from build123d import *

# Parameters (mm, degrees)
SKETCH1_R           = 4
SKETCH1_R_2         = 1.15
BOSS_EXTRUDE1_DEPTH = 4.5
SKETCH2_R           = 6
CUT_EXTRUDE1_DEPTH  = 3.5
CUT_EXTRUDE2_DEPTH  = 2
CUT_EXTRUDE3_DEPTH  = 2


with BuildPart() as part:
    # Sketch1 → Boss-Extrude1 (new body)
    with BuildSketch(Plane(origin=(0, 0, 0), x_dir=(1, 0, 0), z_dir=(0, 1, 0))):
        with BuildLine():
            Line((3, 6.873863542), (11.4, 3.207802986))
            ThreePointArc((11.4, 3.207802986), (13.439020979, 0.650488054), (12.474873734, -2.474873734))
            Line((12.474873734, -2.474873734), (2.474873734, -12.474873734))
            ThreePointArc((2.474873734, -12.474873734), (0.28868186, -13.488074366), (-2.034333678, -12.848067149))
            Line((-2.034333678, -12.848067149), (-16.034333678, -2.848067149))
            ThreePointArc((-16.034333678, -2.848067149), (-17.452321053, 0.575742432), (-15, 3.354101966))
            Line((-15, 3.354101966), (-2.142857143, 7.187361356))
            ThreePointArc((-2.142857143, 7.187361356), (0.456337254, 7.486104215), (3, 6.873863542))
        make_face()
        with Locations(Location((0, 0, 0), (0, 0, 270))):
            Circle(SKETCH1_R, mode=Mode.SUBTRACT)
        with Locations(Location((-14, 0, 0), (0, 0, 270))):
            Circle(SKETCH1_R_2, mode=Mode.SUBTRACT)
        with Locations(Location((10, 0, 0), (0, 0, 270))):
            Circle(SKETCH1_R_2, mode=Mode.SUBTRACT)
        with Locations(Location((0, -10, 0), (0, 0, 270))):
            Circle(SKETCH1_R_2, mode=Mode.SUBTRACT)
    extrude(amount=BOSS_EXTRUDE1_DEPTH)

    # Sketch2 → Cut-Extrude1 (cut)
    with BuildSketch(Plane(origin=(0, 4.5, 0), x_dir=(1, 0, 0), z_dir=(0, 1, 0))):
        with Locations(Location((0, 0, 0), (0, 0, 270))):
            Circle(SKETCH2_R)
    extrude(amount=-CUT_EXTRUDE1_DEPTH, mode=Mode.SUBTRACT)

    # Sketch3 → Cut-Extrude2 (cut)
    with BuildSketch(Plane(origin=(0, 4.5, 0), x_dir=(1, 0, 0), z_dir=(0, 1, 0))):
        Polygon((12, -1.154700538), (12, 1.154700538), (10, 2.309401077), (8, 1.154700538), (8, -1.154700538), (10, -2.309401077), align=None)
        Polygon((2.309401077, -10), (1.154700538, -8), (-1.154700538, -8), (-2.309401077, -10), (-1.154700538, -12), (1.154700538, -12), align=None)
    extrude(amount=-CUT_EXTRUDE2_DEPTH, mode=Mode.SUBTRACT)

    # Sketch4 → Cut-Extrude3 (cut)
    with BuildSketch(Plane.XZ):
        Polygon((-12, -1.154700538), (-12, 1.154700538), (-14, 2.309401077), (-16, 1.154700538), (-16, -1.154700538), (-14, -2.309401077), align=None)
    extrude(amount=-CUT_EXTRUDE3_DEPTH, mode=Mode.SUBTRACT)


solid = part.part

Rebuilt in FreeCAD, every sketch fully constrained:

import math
import FreeCAD as App
import Part
import Sketcher

V = App.Vector
Q = App.Units.Quantity

doc = App.newDocument("Part")
body = doc.addObject("PartDesign::Body", "Body")

# Sketch on XZ plane
sketch1 = body.newObject("Sketcher::SketchObject", "Sketch")
sketch1.AttachmentSupport = (doc.getObject("XZ_Plane"), [""])
sketch1.MapMode = "FlatFace"
sketch1.addGeometry([
    Part.LineSegment(V(11.4, -3.2, 0), V(3, -6.9, 0)),  # 0
    Part.ArcOfCircle(Part.Circle(V(0, 0, 0), V(0, 0, 1), 7.5), math.radians(-107), math.radians(-66)),  # 1
    Part.LineSegment(V(-2.1, -7.2, 0), V(-15, -3.4, 0)),  # 2
    Part.ArcOfCircle(Part.Circle(V(-14, 0, 0), V(0, 0, 1), 3.5), math.radians(126), math.radians(253)),  # 3
    Part.LineSegment(V(-16, 2.8, 0), V(-2, 12.8, 0)),  # 4
    Part.ArcOfCircle(Part.Circle(V(0, 10, 0), V(0, 0, 1), 3.5), math.radians(45), math.radians(126)),  # 5
    Part.LineSegment(V(2.5, 12.5, 0), V(12.5, 2.5, 0)),  # 6
    Part.ArcOfCircle(Part.Circle(V(10, 0, 0), V(0, 0, 1), 3.5), math.radians(-66), math.radians(45)),  # 7
    Part.Circle(V(0, 10, 0), V(0, 0, 1), 1.1),  # 8
    Part.Circle(V(10, 0, 0), V(0, 0, 1), 1.1),  # 9
    Part.Circle(V(0, 0, 0), V(0, 0, 1), 4),  # 10
    Part.Circle(V(-14, 0, 0), V(0, 0, 1), 1.1),  # 11
], False)
sketch1.addConstraint([
    Sketcher.Constraint("Tangent", 0, 2, 1, 2),
    Sketcher.Constraint("Tangent", 1, 1, 2, 1),
    Sketcher.Constraint("Tangent", 2, 2, 3, 2),
    Sketcher.Constraint("Tangent", 3, 1, 4, 1),
    Sketcher.Constraint("Tangent", 4, 2, 5, 2),
    Sketcher.Constraint("Tangent", 5, 1, 6, 1),
    Sketcher.Constraint("Tangent", 6, 2, 7, 2),
    Sketcher.Constraint("Tangent", 7, 1, 0, 1),
    Sketcher.Constraint("Coincident", 1, 3, -1, 1),
    Sketcher.Constraint("Coincident", 10, 3, -1, 1),
    Sketcher.Constraint("Coincident", 8, 3, 5, 3),
    Sketcher.Constraint("Coincident", 9, 3, 7, 3),
    Sketcher.Constraint("Coincident", 11, 3, 3, 3),
    Sketcher.Constraint("Equal", 3, 5),
    Sketcher.Constraint("Equal", 5, 7),
    Sketcher.Constraint("Equal", 8, 9),
    Sketcher.Constraint("Equal", 9, 11),
    Sketcher.Constraint("PointOnObject", 3, 3, -1),
    Sketcher.Constraint("PointOnObject", 5, 3, -2),
    Sketcher.Constraint("PointOnObject", 7, 3, -1),
    Sketcher.Constraint("Diameter", 10, Q("8 mm")),
    Sketcher.Constraint("Diameter", 8, Q("2.3 mm")),
    Sketcher.Constraint("Radius", 1, Q("7.5 mm")),
    Sketcher.Constraint("Radius", 3, Q("3.5 mm")),
    Sketcher.Constraint("Angle", 6, Q("-45 deg")),
    Sketcher.Constraint("DistanceX", 3, 3, -1, 1, Q("14 mm")),
    Sketcher.Constraint("DistanceY", -1, 1, 5, 3, Q("10 mm")),
])
pad1 = body.newObject("PartDesign::Pad", "Pad")
pad1.Profile = sketch1
pad1.Length = 4.5
pad1.Reversed = True

# Sketch on XZ plane
sketch2 = body.newObject("Sketcher::SketchObject", "Sketch001")
sketch2.AttachmentSupport = (doc.getObject("XZ_Plane"), [""])
sketch2.MapMode = "FlatFace"
sketch2.AttachmentOffset = App.Placement(V(0, 0, -4.5), App.Rotation())
sketch2.addGeometry(Part.Circle(V(0, 0, 0), V(0, 0, 1), 6), False)
sketch2.addConstraint([
    Sketcher.Constraint("Coincident", 0, 3, -1, 1),
    Sketcher.Constraint("Diameter", 0, Q("12 mm")),
])
pocket1 = body.newObject("PartDesign::Pocket", "Pocket")
pocket1.Profile = sketch2
pocket1.Length = 3.5
pocket1.Reversed = True

# Sketch on XZ plane
sketch3 = body.newObject("Sketcher::SketchObject", "Sketch002")
sketch3.AttachmentSupport = (doc.getObject("XZ_Plane"), [""])
sketch3.MapMode = "FlatFace"
sketch3.AttachmentOffset = App.Placement(V(0, 0, -4.5), App.Rotation())
sketch3.addGeometry([
    Part.LineSegment(V(12, 1.2, 0), V(12, -1.2, 0)),  # 0
    Part.LineSegment(V(12, -1.2, 0), V(10, -2.3, 0)),  # 1
    Part.LineSegment(V(10, -2.3, 0), V(8, -1.2, 0)),  # 2
    Part.LineSegment(V(8, -1.2, 0), V(8, 1.2, 0)),  # 3
    Part.LineSegment(V(8, 1.2, 0), V(10, 2.3, 0)),  # 4
    Part.LineSegment(V(10, 2.3, 0), V(12, 1.2, 0)),  # 5
    Part.LineSegment(V(2.3, 10, 0), V(1.2, 8, 0)),  # 6
    Part.LineSegment(V(1.2, 8, 0), V(-1.2, 8, 0)),  # 7
    Part.LineSegment(V(-1.2, 8, 0), V(-2.3, 10, 0)),  # 8
    Part.LineSegment(V(-2.3, 10, 0), V(-1.2, 12, 0)),  # 9
    Part.LineSegment(V(-1.2, 12, 0), V(1.2, 12, 0)),  # 10
    Part.LineSegment(V(1.2, 12, 0), V(2.3, 10, 0)),  # 11
], False)
sketch3.addConstraint([
    Sketcher.Constraint("Coincident", 0, 2, 1, 1),
    Sketcher.Constraint("Coincident", 1, 2, 2, 1),
    Sketcher.Constraint("Coincident", 2, 2, 3, 1),
    Sketcher.Constraint("Coincident", 3, 2, 4, 1),
    Sketcher.Constraint("Coincident", 4, 2, 5, 1),
    Sketcher.Constraint("Coincident", 5, 2, 0, 1),
    Sketcher.Constraint("Coincident", 6, 2, 7, 1),
    Sketcher.Constraint("Coincident", 7, 2, 8, 1),
    Sketcher.Constraint("Coincident", 8, 2, 9, 1),
    Sketcher.Constraint("Coincident", 9, 2, 10, 1),
    Sketcher.Constraint("Coincident", 10, 2, 11, 1),
    Sketcher.Constraint("Coincident", 11, 2, 6, 1),
    Sketcher.Constraint("Vertical", 0),
    Sketcher.Constraint("Vertical", 3),
    Sketcher.Constraint("Horizontal", 7),
    Sketcher.Constraint("Horizontal", 10),
    Sketcher.Constraint("Symmetric", 8, 2, 11, 2, -2),
    Sketcher.Constraint("Symmetric", 1, 2, 4, 2, -1),
    Sketcher.Constraint("Parallel", 1, 4),
    Sketcher.Constraint("Parallel", 2, 5),
    Sketcher.Constraint("Perpendicular", 5, 6),
    Sketcher.Constraint("Perpendicular", 4, 8),
    Sketcher.Constraint("Parallel", 6, 9),
    Sketcher.Constraint("Parallel", 8, 11),
    Sketcher.Constraint("Horizontal", 0, 2, 2, 2),
    Sketcher.Constraint("Horizontal", 3, 2, 5, 2),
    Sketcher.Constraint("Vertical", 7, 2, 9, 2),
    Sketcher.Constraint("Equal", 10, 0),
    Sketcher.Constraint("Equal", 5, 6),
    Sketcher.Constraint("Angle", 1, Q("-150 deg")),
    Sketcher.Constraint("DistanceX", -1, 1, 0, 2, Q("12 mm")),
    Sketcher.Constraint("DistanceX", -1, 1, 1, 2, Q("10 mm")),
    Sketcher.Constraint("DistanceY", -1, 1, 6, 2, Q("8 mm")),
    Sketcher.Constraint("DistanceX", 7, 2, 7, 1, Q("2.309401 mm")),
])
pocket2 = body.newObject("PartDesign::Pocket", "Pocket001")
pocket2.Profile = sketch3
pocket2.Length = 2
pocket2.Reversed = True

# Sketch on XZ plane
sketch4 = body.newObject("Sketcher::SketchObject", "Sketch003")
sketch4.AttachmentSupport = (doc.getObject("XZ_Plane"), [""])
sketch4.MapMode = "FlatFace"
sketch4.addGeometry([
    Part.LineSegment(V(-12, -1.2, 0), V(-12, 1.2, 0)),  # 0
    Part.LineSegment(V(-12, 1.2, 0), V(-14, 2.3, 0)),  # 1
    Part.LineSegment(V(-14, 2.3, 0), V(-16, 1.2, 0)),  # 2
    Part.LineSegment(V(-16, 1.2, 0), V(-16, -1.2, 0)),  # 3
    Part.LineSegment(V(-16, -1.2, 0), V(-14, -2.3, 0)),  # 4
    Part.LineSegment(V(-14, -2.3, 0), V(-12, -1.2, 0)),  # 5
], False)
sketch4.addConstraint([
    Sketcher.Constraint("Coincident", 0, 2, 1, 1),
    Sketcher.Constraint("Coincident", 1, 2, 2, 1),
    Sketcher.Constraint("Coincident", 2, 2, 3, 1),
    Sketcher.Constraint("Coincident", 3, 2, 4, 1),
    Sketcher.Constraint("Coincident", 4, 2, 5, 1),
    Sketcher.Constraint("Coincident", 5, 2, 0, 1),
    Sketcher.Constraint("Vertical", 0),
    Sketcher.Constraint("Vertical", 3),
    Sketcher.Constraint("Symmetric", 1, 2, 4, 2, -1),
    Sketcher.Constraint("Parallel", 1, 4),
    Sketcher.Constraint("Parallel", 2, 5),
    Sketcher.Constraint("Horizontal", 0, 2, 2, 2),
    Sketcher.Constraint("Horizontal", 3, 2, 5, 2),
    Sketcher.Constraint("Angle", 1, Q("150 deg")),
    Sketcher.Constraint("DistanceX", 0, 2, -1, 1, Q("12 mm")),
    Sketcher.Constraint("DistanceX", 1, 2, -1, 1, Q("14 mm")),
    Sketcher.Constraint("DistanceY", 0, 1, 0, 2, Q("2.309401 mm")),
])
pocket3 = body.newObject("PartDesign::Pocket", "Pocket002")
pocket3.Profile = sketch4
pocket3.Length = 2

doc.recompute()
